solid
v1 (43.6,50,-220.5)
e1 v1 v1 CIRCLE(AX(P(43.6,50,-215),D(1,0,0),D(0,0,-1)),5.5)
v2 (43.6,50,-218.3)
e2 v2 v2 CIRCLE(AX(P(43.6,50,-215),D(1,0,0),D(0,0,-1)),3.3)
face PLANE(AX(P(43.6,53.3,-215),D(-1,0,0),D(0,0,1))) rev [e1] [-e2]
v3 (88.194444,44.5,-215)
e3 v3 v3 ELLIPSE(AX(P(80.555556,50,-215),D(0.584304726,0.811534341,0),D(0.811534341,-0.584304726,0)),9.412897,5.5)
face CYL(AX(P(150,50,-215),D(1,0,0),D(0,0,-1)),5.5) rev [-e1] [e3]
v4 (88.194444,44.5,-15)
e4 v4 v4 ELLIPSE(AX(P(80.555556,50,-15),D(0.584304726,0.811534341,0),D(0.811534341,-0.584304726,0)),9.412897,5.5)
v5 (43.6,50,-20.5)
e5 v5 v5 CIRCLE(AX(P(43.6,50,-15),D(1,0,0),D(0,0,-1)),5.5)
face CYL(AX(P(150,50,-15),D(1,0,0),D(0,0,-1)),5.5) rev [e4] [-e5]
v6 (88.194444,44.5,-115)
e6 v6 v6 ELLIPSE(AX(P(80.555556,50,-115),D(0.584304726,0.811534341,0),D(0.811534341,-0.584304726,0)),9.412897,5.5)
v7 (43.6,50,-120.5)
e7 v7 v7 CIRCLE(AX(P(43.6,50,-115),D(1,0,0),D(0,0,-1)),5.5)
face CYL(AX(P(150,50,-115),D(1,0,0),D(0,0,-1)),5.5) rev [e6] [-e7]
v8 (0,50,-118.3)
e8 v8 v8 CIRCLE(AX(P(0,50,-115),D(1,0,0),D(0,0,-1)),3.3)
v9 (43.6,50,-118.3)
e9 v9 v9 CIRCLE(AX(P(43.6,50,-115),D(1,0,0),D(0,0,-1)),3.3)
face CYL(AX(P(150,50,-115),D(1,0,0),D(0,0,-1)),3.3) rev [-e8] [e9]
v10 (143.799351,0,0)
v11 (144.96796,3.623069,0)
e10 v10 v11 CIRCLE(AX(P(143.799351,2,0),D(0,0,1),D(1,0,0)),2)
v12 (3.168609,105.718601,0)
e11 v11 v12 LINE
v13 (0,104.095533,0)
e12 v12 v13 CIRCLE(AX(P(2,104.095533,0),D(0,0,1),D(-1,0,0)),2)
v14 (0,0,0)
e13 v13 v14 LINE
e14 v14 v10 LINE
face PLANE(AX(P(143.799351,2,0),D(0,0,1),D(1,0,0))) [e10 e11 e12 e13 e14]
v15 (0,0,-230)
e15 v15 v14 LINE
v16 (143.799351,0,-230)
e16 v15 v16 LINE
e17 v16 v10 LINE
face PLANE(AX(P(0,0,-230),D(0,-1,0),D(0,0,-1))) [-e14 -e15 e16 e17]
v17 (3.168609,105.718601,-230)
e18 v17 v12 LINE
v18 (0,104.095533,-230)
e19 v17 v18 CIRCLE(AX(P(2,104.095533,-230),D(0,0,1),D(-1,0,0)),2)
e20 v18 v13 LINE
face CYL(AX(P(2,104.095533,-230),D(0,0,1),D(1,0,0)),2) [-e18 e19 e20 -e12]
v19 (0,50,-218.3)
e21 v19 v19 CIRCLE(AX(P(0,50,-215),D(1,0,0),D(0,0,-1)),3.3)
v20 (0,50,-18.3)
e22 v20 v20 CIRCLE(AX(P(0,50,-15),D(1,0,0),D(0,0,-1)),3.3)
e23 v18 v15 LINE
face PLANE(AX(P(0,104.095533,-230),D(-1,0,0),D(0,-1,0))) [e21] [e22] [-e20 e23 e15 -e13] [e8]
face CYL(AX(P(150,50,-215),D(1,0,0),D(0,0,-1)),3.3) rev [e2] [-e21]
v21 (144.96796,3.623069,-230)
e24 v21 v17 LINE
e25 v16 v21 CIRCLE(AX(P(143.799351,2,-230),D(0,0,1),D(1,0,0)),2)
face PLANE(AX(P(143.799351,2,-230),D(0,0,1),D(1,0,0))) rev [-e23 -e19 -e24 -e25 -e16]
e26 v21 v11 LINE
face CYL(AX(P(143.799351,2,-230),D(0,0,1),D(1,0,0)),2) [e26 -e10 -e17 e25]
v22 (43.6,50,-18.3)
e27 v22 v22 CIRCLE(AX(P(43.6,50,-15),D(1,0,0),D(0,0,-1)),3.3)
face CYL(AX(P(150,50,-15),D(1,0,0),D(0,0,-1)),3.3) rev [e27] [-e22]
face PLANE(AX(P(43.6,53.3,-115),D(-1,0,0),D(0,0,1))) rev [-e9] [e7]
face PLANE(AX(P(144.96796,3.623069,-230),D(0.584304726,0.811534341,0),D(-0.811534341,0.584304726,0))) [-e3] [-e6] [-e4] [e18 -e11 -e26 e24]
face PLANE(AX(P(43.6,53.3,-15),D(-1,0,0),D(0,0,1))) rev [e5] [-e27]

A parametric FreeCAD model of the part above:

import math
import FreeCAD as App
import Part
import Sketcher
Q = App.Units.Quantity

doc = App.newDocument("Part")
params = doc.addObject("Spreadsheet::Sheet", "Params")
for row, (alias, value) in enumerate([
    ("sketch1_radius", "2 mm"),
    ("pad1_length", "230 mm"),
    ("sketch2_diameter", "6.6 mm"),
    ("hole_diameter", "6.6 mm"),
    ("hole_cbore_diameter", "11 mm"),
    ("hole_cbore_depth", "106.4 mm"),
], start=1):
    params.set(f"A{row}", alias)
    params.set(f"B{row}", "=" + value)
    params.setAlias(f"B{row}", alias)

body = doc.addObject("PartDesign::Body", "Body")

# Sketch on XY plane
sketch1 = body.newObject("Sketcher::SketchObject", "Sketch")
sketch1.AttachmentSupport = (doc.getObject("XY_Plane"), [""])
sketch1.MapMode = "FlatFace"
sketch1.addGeometry([
    Part.LineSegment(App.Vector(0, 104.1, 0), App.Vector(0, 0, 0)),  # 0
    Part.LineSegment(App.Vector(0, 0, 0), App.Vector(143.8, 0, 0)),  # 1
    Part.ArcOfCircle(Part.Circle(App.Vector(143.8, 2, 0), App.Vector(0, 0, 1), 2), math.radians(-90), math.radians(54)),  # 2
    Part.LineSegment(App.Vector(145, 3.6, 0), App.Vector(3.2, 105.7, 0)),  # 3
    Part.ArcOfCircle(Part.Circle(App.Vector(2, 104.1, 0), App.Vector(0, 0, 1), 2), math.radians(54), math.radians(180)),  # 4
], False)
sketch1.addConstraint([
    Sketcher.Constraint("Coincident", 0, 2, 1, 1),
    Sketcher.Constraint("Tangent", 1, 2, 2, 1),
    Sketcher.Constraint("Tangent", 2, 2, 3, 1),
    Sketcher.Constraint("Tangent", 3, 2, 4, 1),
    Sketcher.Constraint("Tangent", 4, 2, 0, 1),
    Sketcher.Constraint("Vertical", 0),
    Sketcher.Constraint("Horizontal", 1),
    Sketcher.Constraint("Coincident", 0, 2, -1, 1),
    Sketcher.Constraint("Equal", 2, 4),
    Sketcher.Constraint("Radius", 2, Q("2 mm")),
    Sketcher.Constraint("DistanceX", 1, 1, 1, 2, Q("143.799351 mm")),
    Sketcher.Constraint("DistanceY", -1, 1, 3, 2, Q("105.718601 mm")),
])
sketch1.setExpression("Constraints[9]", "Params.sketch1_radius")
pad1 = body.newObject("PartDesign::Pad", "Pad")
pad1.Profile = sketch1
pad1.setExpression("Length", "Params.pad1_length")
pad1.Reversed = True

# Sketch on YZ plane
sketch2 = body.newObject("Sketcher::SketchObject", "Sketch001")
sketch2.AttachmentSupport = (doc.getObject("YZ_Plane"), [""])
sketch2.MapMode = "FlatFace"
sketch2.AttachmentOffset = App.Placement(App.Vector(0, 0, 150), App.Rotation())
sketch2.addGeometry([
    Part.Circle(App.Vector(50, -15, 0), App.Vector(0, 0, 1), 3.3),
    Part.Circle(App.Vector(50, -115, 0), App.Vector(0, 0, 1), 3.3),
    Part.Circle(App.Vector(50, -215, 0), App.Vector(0, 0, 1), 3.3),
], False)
sketch2.addConstraint([
    Sketcher.Constraint("Equal", 0, 1),
    Sketcher.Constraint("Equal", 1, 2),
    Sketcher.Constraint("Vertical", 0, 3, 1, 3),
    Sketcher.Constraint("Vertical", 1, 3, 2, 3),
    Sketcher.Constraint("Diameter", 0, Q("6.6 mm")),
    Sketcher.Constraint("DistanceX", -1, 1, 0, 3, Q("50 mm")),
    Sketcher.Constraint("DistanceY", 0, 3, -1, 1, Q("15 mm")),
    Sketcher.Constraint("DistanceY", 1, 3, -1, 1, Q("115 mm")),
    Sketcher.Constraint("DistanceY", 2, 3, -1, 1, Q("215 mm")),
])
sketch2.setExpression("Constraints[4]", "Params.sketch2_diameter")
doc.recompute()
hole = body.newObject("PartDesign::Hole", "Hole")
hole.Profile = sketch2
hole.ThreadType = "None"
hole.setExpression("Diameter", "Params.hole_diameter")
hole.DepthType = "ThroughAll"
hole.HoleCutType = "Counterbore"
hole.setExpression("HoleCutDiameter", "Params.hole_cbore_diameter")
hole.setExpression("HoleCutDepth", "Params.hole_cbore_depth")

doc.recompute()
